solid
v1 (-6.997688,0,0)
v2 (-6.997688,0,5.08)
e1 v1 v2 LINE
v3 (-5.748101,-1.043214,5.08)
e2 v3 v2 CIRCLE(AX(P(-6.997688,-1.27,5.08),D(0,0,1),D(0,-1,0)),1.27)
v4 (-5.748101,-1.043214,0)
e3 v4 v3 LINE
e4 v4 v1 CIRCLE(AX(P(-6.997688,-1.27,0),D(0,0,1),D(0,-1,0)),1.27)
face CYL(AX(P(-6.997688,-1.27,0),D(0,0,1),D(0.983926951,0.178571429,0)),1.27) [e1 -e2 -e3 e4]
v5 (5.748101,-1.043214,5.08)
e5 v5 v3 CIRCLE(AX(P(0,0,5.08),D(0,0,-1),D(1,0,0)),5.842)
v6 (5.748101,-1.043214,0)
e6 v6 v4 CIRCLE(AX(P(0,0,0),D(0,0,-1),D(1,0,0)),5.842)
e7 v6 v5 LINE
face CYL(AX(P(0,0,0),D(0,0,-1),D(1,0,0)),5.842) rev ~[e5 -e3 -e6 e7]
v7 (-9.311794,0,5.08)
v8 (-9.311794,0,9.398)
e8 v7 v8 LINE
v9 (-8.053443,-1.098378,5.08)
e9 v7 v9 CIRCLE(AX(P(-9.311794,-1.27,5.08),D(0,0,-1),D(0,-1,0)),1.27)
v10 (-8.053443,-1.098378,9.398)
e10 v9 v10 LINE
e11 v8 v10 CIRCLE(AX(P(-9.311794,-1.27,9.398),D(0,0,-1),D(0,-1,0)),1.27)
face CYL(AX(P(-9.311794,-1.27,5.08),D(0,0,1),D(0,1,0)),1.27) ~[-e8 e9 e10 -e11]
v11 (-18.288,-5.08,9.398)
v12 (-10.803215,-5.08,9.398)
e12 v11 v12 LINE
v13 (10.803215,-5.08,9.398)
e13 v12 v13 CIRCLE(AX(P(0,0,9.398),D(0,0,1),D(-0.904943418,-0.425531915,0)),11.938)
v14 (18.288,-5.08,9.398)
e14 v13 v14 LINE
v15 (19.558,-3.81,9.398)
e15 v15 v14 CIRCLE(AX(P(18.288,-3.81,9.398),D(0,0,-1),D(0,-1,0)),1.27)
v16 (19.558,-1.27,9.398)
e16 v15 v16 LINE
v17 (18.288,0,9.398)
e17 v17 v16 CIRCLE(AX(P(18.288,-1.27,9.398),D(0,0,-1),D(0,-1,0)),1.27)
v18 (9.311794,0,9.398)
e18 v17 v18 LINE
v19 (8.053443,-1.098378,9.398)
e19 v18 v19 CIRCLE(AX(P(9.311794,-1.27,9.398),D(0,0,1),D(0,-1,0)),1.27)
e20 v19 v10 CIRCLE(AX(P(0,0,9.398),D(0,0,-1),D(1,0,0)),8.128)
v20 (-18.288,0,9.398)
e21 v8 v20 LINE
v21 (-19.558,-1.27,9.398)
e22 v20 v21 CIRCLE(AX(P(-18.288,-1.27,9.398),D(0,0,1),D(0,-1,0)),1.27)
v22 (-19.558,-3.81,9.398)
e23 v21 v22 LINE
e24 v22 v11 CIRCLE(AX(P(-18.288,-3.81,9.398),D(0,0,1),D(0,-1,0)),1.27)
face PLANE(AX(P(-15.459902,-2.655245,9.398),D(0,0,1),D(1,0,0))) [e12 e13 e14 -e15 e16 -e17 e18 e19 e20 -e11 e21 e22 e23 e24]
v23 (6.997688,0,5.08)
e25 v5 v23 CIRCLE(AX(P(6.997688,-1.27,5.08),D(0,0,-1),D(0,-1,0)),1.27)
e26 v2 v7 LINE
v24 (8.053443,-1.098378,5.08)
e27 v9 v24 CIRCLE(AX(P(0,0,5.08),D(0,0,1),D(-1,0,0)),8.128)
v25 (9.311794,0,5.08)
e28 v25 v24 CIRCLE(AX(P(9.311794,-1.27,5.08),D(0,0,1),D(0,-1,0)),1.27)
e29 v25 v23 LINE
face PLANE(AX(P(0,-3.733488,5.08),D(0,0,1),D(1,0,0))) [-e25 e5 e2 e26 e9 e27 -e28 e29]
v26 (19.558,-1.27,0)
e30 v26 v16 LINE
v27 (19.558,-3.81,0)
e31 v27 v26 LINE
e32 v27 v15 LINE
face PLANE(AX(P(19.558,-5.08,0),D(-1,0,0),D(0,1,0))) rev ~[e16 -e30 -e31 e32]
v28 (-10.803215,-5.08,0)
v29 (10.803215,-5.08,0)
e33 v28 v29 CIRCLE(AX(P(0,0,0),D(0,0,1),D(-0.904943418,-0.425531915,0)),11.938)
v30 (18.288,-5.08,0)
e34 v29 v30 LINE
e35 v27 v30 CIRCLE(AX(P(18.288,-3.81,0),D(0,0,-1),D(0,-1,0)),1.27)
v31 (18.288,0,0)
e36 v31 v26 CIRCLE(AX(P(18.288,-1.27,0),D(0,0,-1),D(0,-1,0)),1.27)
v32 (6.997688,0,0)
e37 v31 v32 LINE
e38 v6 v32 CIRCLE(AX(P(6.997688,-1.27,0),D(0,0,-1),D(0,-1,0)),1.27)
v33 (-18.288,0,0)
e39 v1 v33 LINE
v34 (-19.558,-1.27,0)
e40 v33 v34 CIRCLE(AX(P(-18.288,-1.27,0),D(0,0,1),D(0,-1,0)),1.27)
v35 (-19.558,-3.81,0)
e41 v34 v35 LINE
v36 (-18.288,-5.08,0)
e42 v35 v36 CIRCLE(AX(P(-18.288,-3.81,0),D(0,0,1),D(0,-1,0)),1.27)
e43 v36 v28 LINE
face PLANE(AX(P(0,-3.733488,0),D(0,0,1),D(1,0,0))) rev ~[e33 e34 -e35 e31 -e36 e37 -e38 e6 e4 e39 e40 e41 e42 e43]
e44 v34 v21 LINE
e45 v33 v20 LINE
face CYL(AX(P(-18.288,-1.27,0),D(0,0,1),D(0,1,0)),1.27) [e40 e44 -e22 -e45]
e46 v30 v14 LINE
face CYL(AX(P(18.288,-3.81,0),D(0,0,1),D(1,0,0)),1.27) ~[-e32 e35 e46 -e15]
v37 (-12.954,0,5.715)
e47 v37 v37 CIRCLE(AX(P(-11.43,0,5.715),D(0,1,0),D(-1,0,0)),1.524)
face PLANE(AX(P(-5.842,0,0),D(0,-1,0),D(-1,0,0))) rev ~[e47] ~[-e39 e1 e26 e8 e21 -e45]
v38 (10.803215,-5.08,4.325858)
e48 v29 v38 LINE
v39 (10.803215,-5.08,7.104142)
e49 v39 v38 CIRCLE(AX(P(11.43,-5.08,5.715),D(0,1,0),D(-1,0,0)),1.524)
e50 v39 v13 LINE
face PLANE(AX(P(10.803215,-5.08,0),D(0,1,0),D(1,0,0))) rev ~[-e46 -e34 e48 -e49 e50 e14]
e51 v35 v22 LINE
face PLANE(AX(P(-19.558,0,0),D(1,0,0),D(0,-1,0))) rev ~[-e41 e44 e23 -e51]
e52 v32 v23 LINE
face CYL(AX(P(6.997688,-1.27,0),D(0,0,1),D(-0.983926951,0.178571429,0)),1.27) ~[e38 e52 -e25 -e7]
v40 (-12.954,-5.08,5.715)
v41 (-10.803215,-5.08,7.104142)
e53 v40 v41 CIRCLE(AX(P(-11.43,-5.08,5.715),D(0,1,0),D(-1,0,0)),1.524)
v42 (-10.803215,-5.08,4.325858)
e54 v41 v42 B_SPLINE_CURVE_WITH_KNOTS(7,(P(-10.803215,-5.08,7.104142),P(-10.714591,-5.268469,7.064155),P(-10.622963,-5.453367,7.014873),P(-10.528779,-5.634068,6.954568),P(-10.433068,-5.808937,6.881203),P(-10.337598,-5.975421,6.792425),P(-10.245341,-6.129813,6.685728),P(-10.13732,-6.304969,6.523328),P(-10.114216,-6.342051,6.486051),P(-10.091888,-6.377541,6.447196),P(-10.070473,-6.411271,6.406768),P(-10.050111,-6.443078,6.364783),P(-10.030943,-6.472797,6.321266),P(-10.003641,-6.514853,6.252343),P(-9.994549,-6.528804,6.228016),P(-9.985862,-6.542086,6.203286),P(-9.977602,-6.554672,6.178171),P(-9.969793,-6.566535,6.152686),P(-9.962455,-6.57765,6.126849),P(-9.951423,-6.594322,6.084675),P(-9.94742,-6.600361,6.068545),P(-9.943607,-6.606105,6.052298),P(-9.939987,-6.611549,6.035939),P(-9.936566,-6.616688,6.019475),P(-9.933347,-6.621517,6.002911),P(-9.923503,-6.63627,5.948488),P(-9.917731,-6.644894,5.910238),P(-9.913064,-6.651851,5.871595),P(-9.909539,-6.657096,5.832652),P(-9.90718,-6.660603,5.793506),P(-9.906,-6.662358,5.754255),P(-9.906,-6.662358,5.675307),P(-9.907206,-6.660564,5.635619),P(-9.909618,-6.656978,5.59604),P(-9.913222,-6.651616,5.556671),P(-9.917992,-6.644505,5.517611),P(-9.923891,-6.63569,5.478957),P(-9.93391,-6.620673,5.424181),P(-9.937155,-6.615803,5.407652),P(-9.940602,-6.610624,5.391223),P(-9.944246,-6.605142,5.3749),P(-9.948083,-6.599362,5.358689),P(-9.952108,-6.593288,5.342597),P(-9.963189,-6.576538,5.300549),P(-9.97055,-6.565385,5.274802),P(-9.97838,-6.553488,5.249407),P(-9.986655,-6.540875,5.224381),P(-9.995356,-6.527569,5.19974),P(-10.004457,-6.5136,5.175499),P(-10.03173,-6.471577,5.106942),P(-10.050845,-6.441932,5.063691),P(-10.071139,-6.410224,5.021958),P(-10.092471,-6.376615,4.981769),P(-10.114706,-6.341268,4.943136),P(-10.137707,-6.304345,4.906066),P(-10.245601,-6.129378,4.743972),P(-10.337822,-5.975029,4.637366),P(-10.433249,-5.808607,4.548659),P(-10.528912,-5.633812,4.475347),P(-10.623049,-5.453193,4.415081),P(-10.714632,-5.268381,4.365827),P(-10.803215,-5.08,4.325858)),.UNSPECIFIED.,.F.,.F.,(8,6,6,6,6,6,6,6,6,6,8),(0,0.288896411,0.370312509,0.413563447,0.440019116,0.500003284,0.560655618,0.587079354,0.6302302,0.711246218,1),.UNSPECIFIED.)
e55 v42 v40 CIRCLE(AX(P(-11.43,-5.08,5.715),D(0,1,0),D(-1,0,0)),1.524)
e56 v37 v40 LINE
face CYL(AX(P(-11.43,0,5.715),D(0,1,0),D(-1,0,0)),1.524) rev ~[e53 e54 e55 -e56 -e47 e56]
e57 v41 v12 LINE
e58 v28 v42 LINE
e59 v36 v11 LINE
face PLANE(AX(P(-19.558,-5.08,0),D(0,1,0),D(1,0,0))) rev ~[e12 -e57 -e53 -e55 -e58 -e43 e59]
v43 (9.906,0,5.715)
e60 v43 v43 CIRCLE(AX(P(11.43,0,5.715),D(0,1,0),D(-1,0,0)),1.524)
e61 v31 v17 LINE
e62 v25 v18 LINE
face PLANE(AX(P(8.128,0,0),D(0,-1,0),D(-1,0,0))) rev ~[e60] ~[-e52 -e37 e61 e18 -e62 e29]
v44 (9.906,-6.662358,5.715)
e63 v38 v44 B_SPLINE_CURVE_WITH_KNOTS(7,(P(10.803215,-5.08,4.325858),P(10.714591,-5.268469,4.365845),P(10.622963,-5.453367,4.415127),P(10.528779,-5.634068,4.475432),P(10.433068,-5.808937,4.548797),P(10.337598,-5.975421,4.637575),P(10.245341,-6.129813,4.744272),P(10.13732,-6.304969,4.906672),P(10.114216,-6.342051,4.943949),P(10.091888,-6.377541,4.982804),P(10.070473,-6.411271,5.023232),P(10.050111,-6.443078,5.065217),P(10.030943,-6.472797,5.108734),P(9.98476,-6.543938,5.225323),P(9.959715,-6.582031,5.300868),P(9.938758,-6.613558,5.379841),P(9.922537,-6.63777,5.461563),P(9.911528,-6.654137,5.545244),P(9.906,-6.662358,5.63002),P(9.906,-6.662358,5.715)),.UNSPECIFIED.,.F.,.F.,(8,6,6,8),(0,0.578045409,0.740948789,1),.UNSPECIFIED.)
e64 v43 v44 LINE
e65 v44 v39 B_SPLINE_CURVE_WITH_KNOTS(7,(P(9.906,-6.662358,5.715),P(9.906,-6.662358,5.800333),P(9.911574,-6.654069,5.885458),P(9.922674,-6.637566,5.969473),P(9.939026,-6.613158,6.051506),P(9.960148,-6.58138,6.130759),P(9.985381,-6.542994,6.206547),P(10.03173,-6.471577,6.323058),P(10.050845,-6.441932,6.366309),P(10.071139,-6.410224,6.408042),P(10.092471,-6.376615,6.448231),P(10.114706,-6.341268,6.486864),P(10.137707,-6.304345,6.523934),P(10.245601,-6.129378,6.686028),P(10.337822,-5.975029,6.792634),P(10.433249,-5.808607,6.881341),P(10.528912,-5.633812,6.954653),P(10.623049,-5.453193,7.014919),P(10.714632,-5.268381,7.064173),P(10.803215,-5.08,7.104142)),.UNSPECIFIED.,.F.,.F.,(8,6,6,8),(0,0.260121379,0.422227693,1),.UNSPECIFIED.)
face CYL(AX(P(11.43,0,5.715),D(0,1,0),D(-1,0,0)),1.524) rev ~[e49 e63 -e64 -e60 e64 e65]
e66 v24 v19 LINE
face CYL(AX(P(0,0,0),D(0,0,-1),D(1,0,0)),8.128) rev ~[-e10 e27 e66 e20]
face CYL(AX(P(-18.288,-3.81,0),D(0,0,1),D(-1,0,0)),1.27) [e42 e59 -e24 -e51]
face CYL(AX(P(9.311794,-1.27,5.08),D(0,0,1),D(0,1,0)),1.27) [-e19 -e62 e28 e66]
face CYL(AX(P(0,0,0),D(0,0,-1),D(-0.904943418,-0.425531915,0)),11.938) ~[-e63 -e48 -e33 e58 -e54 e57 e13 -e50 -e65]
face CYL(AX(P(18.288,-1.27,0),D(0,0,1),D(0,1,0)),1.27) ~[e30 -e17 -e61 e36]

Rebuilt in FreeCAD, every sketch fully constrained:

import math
import FreeCAD as App
import Part
import Sketcher
Q = App.Units.Quantity


def edges_at(feature, points):
    """Names of the edges that pass closest to the given points."""
    edges = feature.Shape.Edges
    near = lambda p: min(range(len(edges)), key=lambda i: edges[i].distToShape(Part.Vertex(*p))[0])
    return sorted({f"Edge{near(p) + 1}" for p in points})

doc = App.newDocument("Part")
body = doc.addObject("PartDesign::Body", "Body")

# Sketch on XY plane
sketch1 = doc.addObject("Sketcher::SketchObject", "Sketch")
body.addObject(sketch1)
sketch1.AttachmentSupport = (doc.XY_Plane, [""])
sketch1.MapMode = "FlatFace"
sketch1.addGeometry(Part.LineSegment(App.Vector(-20, 0, 0), App.Vector(-20, -5, 0)), False)
sketch1.addGeometry(Part.LineSegment(App.Vector(-20, -5, 0), App.Vector(-11, -5, 0)), False)
sketch1.addGeometry(Part.ArcOfCircle(Part.Circle(App.Vector(0, 0, 0), App.Vector(0, 0, 1), 12), math.radians(-155), math.radians(-25)), False)
sketch1.addGeometry(Part.LineSegment(App.Vector(11, -5, 0), App.Vector(20, -5, 0)), False)
sketch1.addGeometry(Part.LineSegment(App.Vector(20, -5, 0), App.Vector(20, 0, 0)), False)
sketch1.addGeometry(Part.LineSegment(App.Vector(20, 0, 0), App.Vector(8, 0, 0)), False)
sketch1.addGeometry(Part.ArcOfCircle(Part.Circle(App.Vector(0, 0, 0), App.Vector(0, 0, 1), 8), math.radians(180), math.radians(360)), False)
sketch1.addGeometry(Part.LineSegment(App.Vector(-8, 0, 0), App.Vector(-20, 0, 0)), False)
sketch1.addConstraint(Sketcher.Constraint("Coincident", 0, 2, 1, 1))
sketch1.addConstraint(Sketcher.Constraint("Coincident", 1, 2, 2, 1))
sketch1.addConstraint(Sketcher.Constraint("Coincident", 2, 2, 3, 1))
sketch1.addConstraint(Sketcher.Constraint("Coincident", 3, 2, 4, 1))
sketch1.addConstraint(Sketcher.Constraint("Coincident", 4, 2, 5, 1))
sketch1.addConstraint(Sketcher.Constraint("Coincident", 5, 2, 6, 2))
sketch1.addConstraint(Sketcher.Constraint("Coincident", 6, 1, 7, 1))
sketch1.addConstraint(Sketcher.Constraint("Coincident", 7, 2, 0, 1))
sketch1.addConstraint(Sketcher.Constraint("Vertical", 0))
sketch1.addConstraint(Sketcher.Constraint("Horizontal", 1))
sketch1.addConstraint(Sketcher.Constraint("Horizontal", 3))
sketch1.addConstraint(Sketcher.Constraint("Vertical", 4))
sketch1.addConstraint(Sketcher.Constraint("Horizontal", 5))
sketch1.addConstraint(Sketcher.Constraint("Horizontal", 7))
sketch1.addConstraint(Sketcher.Constraint("Coincident", 2, 3, -1, 1))
sketch1.addConstraint(Sketcher.Constraint("Coincident", 6, 3, -1, 1))
sketch1.addConstraint(Sketcher.Constraint("Symmetric", 4, 2, 7, 2, -1, 1))
sketch1.addConstraint(Sketcher.Constraint("PointOnObject", 4, 2, -1))
sketch1.addConstraint(Sketcher.Constraint("Horizontal", 1, 2, 2, 2))
sketch1.addConstraint(Sketcher.Constraint("Radius", 2, Q("0.47 in")))
sketch1.addConstraint(Sketcher.Constraint("Radius", 6, Q("0.32 in")))
sketch1.addConstraint(Sketcher.Constraint("DistanceY", 0, 2, 0, 1, Q("0.2 in")))
sketch1.addConstraint(Sketcher.Constraint("DistanceX", 5, 2, 5, 1, Q("0.45 in")))
pad1 = doc.addObject("PartDesign::Pad", "Pad")
body.addObject(pad1)
pad1.Profile = sketch1
pad1.Length = Q("0.37 in")

# Sketch on XY plane
sketch2 = doc.addObject("Sketcher::SketchObject", "Sketch001")
body.addObject(sketch2)
sketch2.AttachmentSupport = (doc.XY_Plane, [""])
sketch2.MapMode = "FlatFace"
sketch2.addGeometry(Part.ArcOfCircle(Part.Circle(App.Vector(0, 0, 0), App.Vector(0, 0, 1), 5.8), math.radians(180), math.radians(360)), False)
sketch2.addGeometry(Part.LineSegment(App.Vector(-5.8, 0, 0), App.Vector(-8.1, 0, 0)), False)
sketch2.addGeometry(Part.ArcOfCircle(Part.Circle(App.Vector(0, 0, 0), App.Vector(0, 0, 1), 8.1), math.radians(180), math.radians(360)), False)
sketch2.addGeometry(Part.LineSegment(App.Vector(8.1, 0, 0), App.Vector(5.8, 0, 0)), False)
sketch2.addConstraint(Sketcher.Constraint("Coincident", 0, 1, 1, 1))
sketch2.addConstraint(Sketcher.Constraint("Coincident", 1, 2, 2, 1))
sketch2.addConstraint(Sketcher.Constraint("Coincident", 2, 2, 3, 1))
sketch2.addConstraint(Sketcher.Constraint("Coincident", 3, 2, 0, 2))
sketch2.addConstraint(Sketcher.Constraint("Horizontal", 1))
sketch2.addConstraint(Sketcher.Constraint("Horizontal", 3))
sketch2.addConstraint(Sketcher.Constraint("Coincident", 0, 3, -1, 1))
sketch2.addConstraint(Sketcher.Constraint("Coincident", 2, 3, -1, 1))
sketch2.addConstraint(Sketcher.Constraint("PointOnObject", 0, 1, -1))
sketch2.addConstraint(Sketcher.Constraint("PointOnObject", 2, 2, -1))
sketch2.addConstraint(Sketcher.Constraint("Radius", 0, Q("0.23 in")))
sketch2.addConstraint(Sketcher.Constraint("Radius", 2, Q("0.32 in")))
pad2 = doc.addObject("PartDesign::Pad", "Pad001")
body.addObject(pad2)
pad2.Profile = sketch2
pad2.Length = Q("0.2 in")

# Sketch on XZ plane
sketch3 = doc.addObject("Sketcher::SketchObject", "Sketch002")
body.addObject(sketch3)
sketch3.AttachmentSupport = (doc.XZ_Plane, [""])
sketch3.MapMode = "FlatFace"
sketch3.addGeometry(Part.Circle(App.Vector(11.4, 5.7, 0), App.Vector(0, 0, 1), 1.5), False)
sketch3.addGeometry(Part.Circle(App.Vector(-11.4, 5.7, 0), App.Vector(0, 0, 1), 1.5), False)
sketch3.addConstraint(Sketcher.Constraint("Equal", 0, 1))
sketch3.addConstraint(Sketcher.Constraint("Symmetric", 0, 3, 1, 3, -2))
sketch3.addConstraint(Sketcher.Constraint("Diameter", 0, Q("0.12 in")))
sketch3.addConstraint(Sketcher.Constraint("DistanceX", 1, 3, 0, 3, Q("0.9 in")))
sketch3.addConstraint(Sketcher.Constraint("DistanceY", -1, 1, 0, 3, Q("0.225 in")))
pocket1 = doc.addObject("PartDesign::Pocket", "Pocket")
body.addObject(pocket1)
pocket1.Profile = sketch3
pocket1.Type = "ThroughAll"
pocket1.Reversed = True
doc.recompute()

fillet = doc.addObject("PartDesign::Fillet", "Fillet")
body.addObject(fillet)
fillet.Base = (pocket1, edges_at(pocket1, [
    (5.842, 0, 2.54),
    (-5.842, 0, 2.54),
    (8.128, 0, 7.239),
    (-8.128, 0, 7.239),
    (19.558, 0, 4.699),
    (19.558, -5.08, 4.699),
    (-19.558, 0, 4.699),
    (-19.558, -5.08, 4.699),
]))
fillet.Radius = Q("0.05 in")

doc.recompute()
